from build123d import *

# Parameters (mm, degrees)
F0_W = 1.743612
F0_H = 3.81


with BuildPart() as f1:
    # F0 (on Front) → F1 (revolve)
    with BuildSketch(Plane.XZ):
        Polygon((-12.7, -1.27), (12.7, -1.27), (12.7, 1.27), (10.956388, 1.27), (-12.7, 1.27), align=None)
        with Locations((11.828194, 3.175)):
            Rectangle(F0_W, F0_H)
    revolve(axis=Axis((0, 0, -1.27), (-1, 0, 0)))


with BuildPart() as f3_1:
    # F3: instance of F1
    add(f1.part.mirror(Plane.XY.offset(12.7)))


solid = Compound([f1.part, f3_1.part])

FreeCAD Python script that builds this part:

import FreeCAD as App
import Part
import Sketcher
Q = App.Units.Quantity


def add_polygon(sketch, points):
    """Adds a closed chain of lines whose ends are joined by coincident constraints."""
    first, n = sketch.GeometryCount, len(points)
    for a, b in zip(points, points[1:] + points[:1]):
        sketch.addGeometry(Part.LineSegment(App.Vector(*a, 0), App.Vector(*b, 0)), False)
    for i in range(n):
        sketch.addConstraint(Sketcher.Constraint("Coincident", first + i, 2, first + (i + 1) % n, 1))

doc = App.newDocument("Part")
params = doc.addObject("Spreadsheet::Sheet", "Params")
for row, (alias, value) in enumerate([
    ("sketch1_width", "1 in"),
    ("sketch1_height", "0.1 in"),
    ("sketch1_height2", "0.25 in"),
    ("revolution_angle", "360 deg"),
], start=1):
    params.set(f"A{row}", alias)
    params.set(f"B{row}", "=" + value)
    params.setAlias(f"B{row}", alias)

body = doc.addObject("PartDesign::Body", "Body")

# Sketch on XZ plane
sketch1 = doc.addObject("Sketcher::SketchObject", "Sketch")
body.addObject(sketch1)
sketch1.AttachmentSupport = (doc.XZ_Plane, [""])
sketch1.MapMode = "FlatFace"
add_polygon(sketch1, [(-12.7, -1.3), (12.7, -1.3), (12.7, 5.1), (11, 5.1), (11, 1.3), (-12.7, 1.3)])  # lines 0-5
sketch1.addGeometry(Part.LineSegment(App.Vector(12.7, -1.3, 0), App.Vector(-12.7, -1.3, 0)), True)  # axis
sketch1.addConstraint(Sketcher.Constraint("Horizontal", 0))
sketch1.addConstraint(Sketcher.Constraint("Vertical", 1))
sketch1.addConstraint(Sketcher.Constraint("Horizontal", 2))
sketch1.addConstraint(Sketcher.Constraint("Vertical", 3))
sketch1.addConstraint(Sketcher.Constraint("Horizontal", 4))
sketch1.addConstraint(Sketcher.Constraint("Vertical", 5))
sketch1.addConstraint(Sketcher.Constraint("Horizontal", 6))
sketch1.addConstraint(Sketcher.Constraint("Coincident", 6, 1, 0, 2))
sketch1.addConstraint(Sketcher.Constraint("Symmetric", 0, 2, 4, 2, -1, 1))
sketch1.addConstraint(Sketcher.Constraint("Vertical", 4, 2, 6, 2))
sketch1.addConstraint(Sketcher.Constraint("DistanceX", 0, 1, 0, 2, Q("1 in")))
sketch1.addConstraint(Sketcher.Constraint("DistanceY", 5, 2, 5, 1, Q("0.1 in")))
sketch1.addConstraint(Sketcher.Constraint("DistanceY", 1, 1, 1, 2, Q("0.25 in")))
sketch1.addConstraint(Sketcher.Constraint("DistanceX", 2, 2, 2, 1, Q("1.743612 mm")))
sketch1.setExpression("Constraints[16]", "Params.sketch1_width")
sketch1.setExpression("Constraints[17]", "Params.sketch1_height")
sketch1.setExpression("Constraints[18]", "Params.sketch1_height2")
revolution = doc.addObject("PartDesign::Revolution", "Revolution")
body.addObject(revolution)
revolution.Profile = sketch1
revolution.ReferenceAxis = (sketch1, ["Axis0"])
revolution.setExpression("Angle", "Params.revolution_angle")
body2 = doc.addObject("PartDesign::Body", "Body001")
doc.recompute()

mirroring = doc.addObject("Part::Mirroring", "Mirroring")
mirroring.Source = body
mirroring.Base = App.Vector(0, 0, 12.7)
mirroring.Normal = App.Vector(0, 0, 1)
body2.BaseFeature = mirroring
doc.recompute()
mirroring.Visibility = False

doc.recompute()
